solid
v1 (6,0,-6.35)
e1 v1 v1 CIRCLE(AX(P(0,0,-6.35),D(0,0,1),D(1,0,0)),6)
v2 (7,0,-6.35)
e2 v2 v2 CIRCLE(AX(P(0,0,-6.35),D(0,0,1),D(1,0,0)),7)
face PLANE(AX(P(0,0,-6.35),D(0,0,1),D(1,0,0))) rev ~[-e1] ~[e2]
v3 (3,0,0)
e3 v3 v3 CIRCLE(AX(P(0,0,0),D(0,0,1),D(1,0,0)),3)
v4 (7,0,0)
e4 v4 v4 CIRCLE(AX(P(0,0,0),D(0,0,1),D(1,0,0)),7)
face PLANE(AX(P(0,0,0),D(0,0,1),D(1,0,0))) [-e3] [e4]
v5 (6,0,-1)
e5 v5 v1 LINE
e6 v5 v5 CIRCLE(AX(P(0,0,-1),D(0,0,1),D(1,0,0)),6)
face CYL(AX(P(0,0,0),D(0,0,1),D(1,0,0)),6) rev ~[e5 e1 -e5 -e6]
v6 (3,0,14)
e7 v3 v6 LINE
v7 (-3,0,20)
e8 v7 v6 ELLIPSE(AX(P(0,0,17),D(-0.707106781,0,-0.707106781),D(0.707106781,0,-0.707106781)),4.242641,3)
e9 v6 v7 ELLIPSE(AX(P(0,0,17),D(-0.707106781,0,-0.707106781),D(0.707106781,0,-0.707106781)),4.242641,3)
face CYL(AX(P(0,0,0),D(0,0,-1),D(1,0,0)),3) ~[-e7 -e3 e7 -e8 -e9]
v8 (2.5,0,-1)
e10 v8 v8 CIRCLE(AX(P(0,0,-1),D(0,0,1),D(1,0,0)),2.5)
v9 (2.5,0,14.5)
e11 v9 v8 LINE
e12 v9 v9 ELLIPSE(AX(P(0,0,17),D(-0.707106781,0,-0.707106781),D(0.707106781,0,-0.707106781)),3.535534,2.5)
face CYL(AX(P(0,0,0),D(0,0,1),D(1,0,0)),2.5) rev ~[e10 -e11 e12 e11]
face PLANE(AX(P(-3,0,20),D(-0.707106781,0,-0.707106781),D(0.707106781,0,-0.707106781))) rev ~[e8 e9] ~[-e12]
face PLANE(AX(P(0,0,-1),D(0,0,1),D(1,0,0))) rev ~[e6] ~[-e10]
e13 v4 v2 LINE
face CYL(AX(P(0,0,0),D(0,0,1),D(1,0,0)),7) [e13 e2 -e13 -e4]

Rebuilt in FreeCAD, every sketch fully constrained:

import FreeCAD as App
import Part
import Sketcher
from FreeCAD import Vector

doc = App.newDocument("Part")
body = doc.addObject("PartDesign::Body", "Body")

# Sketch on XY plane
sketch1 = body.newObject("Sketcher::SketchObject", "Sketch")
sketch1.AttachmentSupport = (doc.getObject("XY_Plane"), [""])
sketch1.MapMode = "FlatFace"
sketch1.addGeometry([
    Part.Circle(Vector(0, 0, 0), Vector(0, 0, 1), 3),
    Part.Circle(Vector(0, 0, 0), Vector(0, 0, 1), 2.5),
], False)
sketch1.addConstraint([
    Sketcher.Constraint("Coincident", 0, 3, -1, 1),
    Sketcher.Constraint("Coincident", 1, 3, -1, 1),
    Sketcher.Constraint("Diameter", 0, 6.0),
    Sketcher.Constraint("Diameter", 1, 5.0),
])
pad1 = body.newObject("PartDesign::Pad", "Pad")
pad1.Profile = sketch1
pad1.Length = 20
body2 = doc.addObject("PartDesign::Body", "Body001")

# Sketch on XY plane
sketch2 = body2.newObject("Sketcher::SketchObject", "Sketch001")
sketch2.AttachmentSupport = (doc.getObject("XY_Plane001"), [""])
sketch2.MapMode = "FlatFace"
sketch2.addGeometry([
    Part.Circle(Vector(0, 0, 0), Vector(0, 0, 1), 7),
    Part.Circle(Vector(0, 0, 0), Vector(0, 0, 1), 6),
], False)
sketch2.addConstraint([
    Sketcher.Constraint("Coincident", 0, 3, -1, 1),
    Sketcher.Constraint("Coincident", 1, 3, -1, 1),
    Sketcher.Constraint("Diameter", 0, 14.0),
    Sketcher.Constraint("Diameter", 1, 12.0),
])
pad2 = body2.newObject("PartDesign::Pad", "Pad001")
pad2.Profile = sketch2
pad2.Length = 6.35
pad2.Reversed = True
body.AllowCompound = True
doc.recompute()

boolean = body.newObject("PartDesign::Boolean", "Boolean")
boolean.Type = "Fuse"
boolean.addObjects([body2])

# Sketch on XY plane
sketch3 = body.newObject("Sketcher::SketchObject", "Sketch002")
sketch3.AttachmentSupport = (doc.getObject("XY_Plane"), [""])
sketch3.MapMode = "FlatFace"
sketch3.addGeometry([
    Part.Circle(Vector(0, 0, 0), Vector(0, 0, 1), 6),
    Part.Circle(Vector(0, 0, 0), Vector(0, 0, 1), 2.5),
], False)
sketch3.addConstraint([
    Sketcher.Constraint("Coincident", 0, 3, -1, 1),
    Sketcher.Constraint("Coincident", 1, 3, -1, 1),
    Sketcher.Constraint("Diameter", 0, 12.0),
    Sketcher.Constraint("Diameter", 1, 5.0),
])
pad3 = body.newObject("PartDesign::Pad", "Pad002")
pad3.Profile = sketch3
pad3.Length = 1
pad3.Reversed = True

# Sketch on XZ plane
sketch4 = body.newObject("Sketcher::SketchObject", "Sketch003")
sketch4.AttachmentSupport = (doc.getObject("XZ_Plane"), [""])
sketch4.MapMode = "FlatFace"
sketch4.addGeometry([
    Part.LineSegment(Vector(3, 20, 0), Vector(-3, 20, 0)),
    Part.LineSegment(Vector(-3, 20, 0), Vector(3, 14, 0)),
    Part.LineSegment(Vector(3, 14, 0), Vector(3, 20, 0)),
], False)
sketch4.addConstraint([
    Sketcher.Constraint("Coincident", 0, 2, 1, 1),
    Sketcher.Constraint("Coincident", 1, 2, 2, 1),
    Sketcher.Constraint("Coincident", 2, 2, 0, 1),
    Sketcher.Constraint("Horizontal", 0),
    Sketcher.Constraint("Vertical", 2),
    Sketcher.Constraint("Equal", 0, 2),
    Sketcher.Constraint("DistanceX", 0, 2, 0, 1, 6.0),
    Sketcher.Constraint("DistanceX", 0, 2, -1, 1, 3.0),
    Sketcher.Constraint("DistanceY", -1, 1, 0, 2, 20.0),
])
pocket1 = body.newObject("PartDesign::Pocket", "Pocket")
pocket1.Profile = sketch4
pocket1.Length = 25.4
pocket1.Midplane = True

doc.recompute()
